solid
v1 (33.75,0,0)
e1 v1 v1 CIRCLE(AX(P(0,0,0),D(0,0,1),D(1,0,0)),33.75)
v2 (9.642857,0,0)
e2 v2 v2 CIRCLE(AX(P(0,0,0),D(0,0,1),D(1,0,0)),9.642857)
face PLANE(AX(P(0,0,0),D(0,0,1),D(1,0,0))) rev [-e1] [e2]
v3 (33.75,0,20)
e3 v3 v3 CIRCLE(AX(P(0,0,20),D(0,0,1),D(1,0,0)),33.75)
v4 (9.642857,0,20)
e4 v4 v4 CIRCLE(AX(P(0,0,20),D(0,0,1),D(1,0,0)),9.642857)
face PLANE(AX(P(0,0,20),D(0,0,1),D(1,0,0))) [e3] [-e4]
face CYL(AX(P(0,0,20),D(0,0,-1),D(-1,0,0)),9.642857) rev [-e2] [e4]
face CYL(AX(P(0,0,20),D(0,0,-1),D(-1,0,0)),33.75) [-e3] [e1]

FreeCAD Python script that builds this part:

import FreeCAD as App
import Part
import Sketcher
from FreeCAD import Vector
Q = App.Units.Quantity

doc = App.newDocument("Part")
params = doc.addObject("Spreadsheet::Sheet", "Params")
for row, (alias, value) in enumerate([
    ("sketch1_diameter", "67.5 mm"),
    ("pad1_length", "20 mm"),
], start=1):
    params.set(f"A{row}", alias)
    params.set(f"B{row}", "=" + value)
    params.setAlias(f"B{row}", alias)

body = doc.addObject("PartDesign::Body", "Body")

# Sketch on XY plane
sketch1 = body.newObject("Sketcher::SketchObject", "Sketch")
sketch1.AttachmentSupport = (doc.getObject("XY_Plane"), [""])
sketch1.MapMode = "FlatFace"
sketch1.addGeometry([
    Part.Circle(Vector(0, 0, 0), Vector(0, 0, 1), 33.75),
    Part.Circle(Vector(0, 0, 0), Vector(0, 0, 1), 9.642857),
], False)
sketch1.addConstraint([
    Sketcher.Constraint("Coincident", 0, 3, -1, 1),
    Sketcher.Constraint("Coincident", 1, 3, -1, 1),
    Sketcher.Constraint("Diameter", 0, Q("67.5 mm")),
    Sketcher.Constraint("Diameter", 1, Q("19.285714 mm")),
])
sketch1.setExpression("Constraints[2]", "Params.sketch1_diameter")
pad1 = body.newObject("PartDesign::Pad", "Pad")
pad1.Profile = sketch1
pad1.setExpression("Length", "Params.pad1_length")

doc.recompute()
